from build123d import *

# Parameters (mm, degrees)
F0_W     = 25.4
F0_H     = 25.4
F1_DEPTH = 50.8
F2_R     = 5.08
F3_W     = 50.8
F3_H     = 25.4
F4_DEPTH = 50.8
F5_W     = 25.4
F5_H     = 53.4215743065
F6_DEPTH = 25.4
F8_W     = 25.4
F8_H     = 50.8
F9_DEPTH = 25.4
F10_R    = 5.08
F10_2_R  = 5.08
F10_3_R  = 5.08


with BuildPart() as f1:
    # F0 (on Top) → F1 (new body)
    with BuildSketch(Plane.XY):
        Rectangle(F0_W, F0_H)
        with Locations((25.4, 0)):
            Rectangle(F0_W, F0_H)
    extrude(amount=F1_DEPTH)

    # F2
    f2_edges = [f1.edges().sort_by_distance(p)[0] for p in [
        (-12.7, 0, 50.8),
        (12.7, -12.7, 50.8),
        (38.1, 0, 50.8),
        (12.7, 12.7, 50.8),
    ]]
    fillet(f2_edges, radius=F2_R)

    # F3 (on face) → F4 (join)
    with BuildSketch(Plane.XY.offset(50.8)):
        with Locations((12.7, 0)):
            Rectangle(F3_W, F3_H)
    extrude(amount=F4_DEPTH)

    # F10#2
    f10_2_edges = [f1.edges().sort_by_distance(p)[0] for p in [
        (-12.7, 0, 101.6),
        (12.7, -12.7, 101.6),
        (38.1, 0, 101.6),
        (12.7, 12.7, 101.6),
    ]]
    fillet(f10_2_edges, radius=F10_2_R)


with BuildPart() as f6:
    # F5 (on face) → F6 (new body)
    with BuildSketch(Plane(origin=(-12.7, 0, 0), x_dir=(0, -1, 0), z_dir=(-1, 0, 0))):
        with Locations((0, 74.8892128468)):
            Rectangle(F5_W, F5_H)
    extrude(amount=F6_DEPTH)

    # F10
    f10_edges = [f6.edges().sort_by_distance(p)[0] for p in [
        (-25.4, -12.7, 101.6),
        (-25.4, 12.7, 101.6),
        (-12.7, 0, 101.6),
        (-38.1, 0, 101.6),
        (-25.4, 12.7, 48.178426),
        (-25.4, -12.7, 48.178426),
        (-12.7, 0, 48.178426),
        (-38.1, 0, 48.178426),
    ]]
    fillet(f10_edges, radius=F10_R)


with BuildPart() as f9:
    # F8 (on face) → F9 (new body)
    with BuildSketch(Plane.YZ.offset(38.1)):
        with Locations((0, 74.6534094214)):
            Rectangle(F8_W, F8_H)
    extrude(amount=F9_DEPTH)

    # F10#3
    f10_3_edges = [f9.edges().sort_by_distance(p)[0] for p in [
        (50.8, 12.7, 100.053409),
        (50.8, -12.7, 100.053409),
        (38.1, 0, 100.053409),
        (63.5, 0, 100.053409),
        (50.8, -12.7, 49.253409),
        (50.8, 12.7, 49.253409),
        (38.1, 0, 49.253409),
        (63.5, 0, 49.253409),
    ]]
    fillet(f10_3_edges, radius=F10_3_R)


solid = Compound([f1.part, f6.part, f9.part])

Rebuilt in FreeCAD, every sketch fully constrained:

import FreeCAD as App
import Part
import Sketcher

V = App.Vector
Q = App.Units.Quantity


def edges_at(feature, points):
    """Names of the edges that pass closest to the given points."""
    edges = feature.Shape.Edges
    near = lambda p: min(range(len(edges)), key=lambda i: edges[i].distToShape(Part.Vertex(*p))[0])
    return sorted({f"Edge{near(p) + 1}" for p in points})


def add_polygon(sketch, points):
    """Adds a closed chain of lines whose ends are joined by coincident constraints."""
    first, n = sketch.GeometryCount, len(points)
    for a, b in zip(points, points[1:] + points[:1]):
        sketch.addGeometry(Part.LineSegment(App.Vector(*a, 0), App.Vector(*b, 0)), False)
    for i in range(n):
        sketch.addConstraint(Sketcher.Constraint("Coincident", first + i, 2, first + (i + 1) % n, 1))

doc = App.newDocument("Part")
body = doc.addObject("PartDesign::Body", "Body")

sketch1 = doc.addObject("Sketcher::SketchObject", "Sketch")
body.addObject(sketch1)
sketch1.AttachmentSupport = (doc.XY_Plane, [""])
sketch1.MapMode = "FlatFace"
add_polygon(sketch1, [(-13, 13), (-13, -13), (38, -13), (38, 13)])
sketch1.addConstraint([
    Sketcher.Constraint("Vertical", 0),
    Sketcher.Constraint("Horizontal", 1),
    Sketcher.Constraint("Vertical", 2),
    Sketcher.Constraint("Horizontal", 3),
    Sketcher.Constraint("DistanceX", 1, 1, 1, 2, Q("2 in")),
    Sketcher.Constraint("DistanceY", 0, 2, 0, 1, Q("1 in")),
    Sketcher.Constraint("DistanceX", 0, 2, -1, 1, Q("0.5 in")),
    Sketcher.Constraint("DistanceY", 0, 2, -1, 1, Q("0.5 in")),
])
pad1 = doc.addObject("PartDesign::Pad", "Pad")
body.addObject(pad1)
pad1.Profile = sketch1
pad1.Length = Q("2 in")
doc.recompute()

fillet = doc.addObject("PartDesign::Fillet", "Fillet")
body.addObject(fillet)
fillet.Base = (pad1, edges_at(pad1, [
    (-12.7, 0, 50.8),
    (12.7, -12.7, 50.8),
    (38.1, 0, 50.8),
    (12.7, 12.7, 50.8),
]))
fillet.Radius = Q("0.2 in")

sketch2 = doc.addObject("Sketcher::SketchObject", "Sketch001")
body.addObject(sketch2)
sketch2.AttachmentSupport = (doc.XY_Plane, [""])
sketch2.MapMode = "FlatFace"
sketch2.AttachmentOffset = App.Placement(V(0, 0, 2 * 25.4), App.Rotation())
add_polygon(sketch2, [(-13, 13), (-13, -13), (38, -13), (38, 13)])
sketch2.addConstraint([
    Sketcher.Constraint("Vertical", 0),
    Sketcher.Constraint("Horizontal", 1),
    Sketcher.Constraint("Vertical", 2),
    Sketcher.Constraint("Horizontal", 3),
    Sketcher.Constraint("DistanceX", 1, 1, 1, 2, Q("2 in")),
    Sketcher.Constraint("DistanceY", 0, 2, 0, 1, Q("1 in")),
    Sketcher.Constraint("DistanceX", 0, 2, -1, 1, Q("0.5 in")),
    Sketcher.Constraint("DistanceY", 0, 2, -1, 1, Q("0.5 in")),
])
pad2 = doc.addObject("PartDesign::Pad", "Pad001")
body.addObject(pad2)
pad2.Profile = sketch2
pad2.Length = Q("2 in")
doc.recompute()

fillet2 = doc.addObject("PartDesign::Fillet", "Fillet001")
body.addObject(fillet2)
fillet2.Base = (pad2, edges_at(pad2, [
    (-12.7, 0, 101.6),
    (12.7, -12.7, 101.6),
    (38.1, 0, 101.6),
    (12.7, 12.7, 101.6),
]))
fillet2.Radius = Q("0.2 in")
body2 = doc.addObject("PartDesign::Body", "Body001")

sketch3 = doc.addObject("Sketcher::SketchObject", "Sketch002")
body2.addObject(sketch3)
sketch3.AttachmentSupport = (doc.getObject("YZ_Plane001"), [""])
sketch3.MapMode = "FlatFace"
sketch3.AttachmentOffset = App.Placement(V(0, 0, -0.5 * 25.4), App.Rotation())
add_polygon(sketch3, [(13, 102), (13, 48), (-13, 48), (-13, 102)])
sketch3.addConstraint([
    Sketcher.Constraint("Vertical", 0),
    Sketcher.Constraint("Horizontal", 1),
    Sketcher.Constraint("Vertical", 2),
    Sketcher.Constraint("Horizontal", 3),
    Sketcher.Constraint("DistanceX", 1, 2, 1, 1, Q("1 in")),
    Sketcher.Constraint("DistanceY", -1, 1, 2, 2, Q("4 in")),
    Sketcher.Constraint("DistanceX", -1, 1, 0, 2, Q("0.5 in")),
    Sketcher.Constraint("DistanceY", 0, 2, 0, 1, Q("53.421574 mm")),
])
pad3 = doc.addObject("PartDesign::Pad", "Pad002")
body2.addObject(pad3)
pad3.Profile = sketch3
pad3.Length = Q("1 in")
pad3.Reversed = True
doc.recompute()

fillet3 = doc.addObject("PartDesign::Fillet", "Fillet002")
body2.addObject(fillet3)
fillet3.Base = (pad3, edges_at(pad3, [
    (-25.4, -12.7, 101.6),
    (-25.4, 12.7, 101.6),
    (-12.7, 0, 101.6),
    (-38.1, 0, 101.6),
    (-25.4, 12.7, 48.178),
    (-25.4, -12.7, 48.178),
    (-12.7, 0, 48.178),
    (-38.1, 0, 48.178),
]))
fillet3.Radius = Q("0.2 in")
body3 = doc.addObject("PartDesign::Body", "Body002")

sketch4 = doc.addObject("Sketcher::SketchObject", "Sketch003")
body3.addObject(sketch4)
sketch4.AttachmentSupport = (doc.getObject("YZ_Plane002"), [""])
sketch4.MapMode = "FlatFace"
sketch4.AttachmentOffset = App.Placement(V(0, 0, 1.5 * 25.4), App.Rotation())
add_polygon(sketch4, [(-13, 100), (-13, 49), (13, 49), (13, 100)])
sketch4.addConstraint([
    Sketcher.Constraint("Vertical", 0),
    Sketcher.Constraint("Horizontal", 1),
    Sketcher.Constraint("Vertical", 2),
    Sketcher.Constraint("Horizontal", 3),
    Sketcher.Constraint("DistanceX", 1, 1, 1, 2, Q("1 in")),
    Sketcher.Constraint("DistanceY", 0, 2, 0, 1, Q("2 in")),
    Sketcher.Constraint("DistanceX", 0, 2, -1, 1, Q("0.5 in")),
    Sketcher.Constraint("DistanceY", -1, 1, 0, 2, Q("49.253409 mm")),
])
pad4 = doc.addObject("PartDesign::Pad", "Pad003")
body3.addObject(pad4)
pad4.Profile = sketch4
pad4.Length = Q("1 in")
doc.recompute()

fillet4 = doc.addObject("PartDesign::Fillet", "Fillet003")
body3.addObject(fillet4)
fillet4.Base = (pad4, edges_at(pad4, [
    (50.8, 12.7, 100.053),
    (50.8, -12.7, 100.053),
    (38.1, 0, 100.053),
    (63.5, 0, 100.053),
    (50.8, -12.7, 49.253),
    (50.8, 12.7, 49.253),
    (38.1, 0, 49.253),
    (63.5, 0, 49.253),
]))
fillet4.Radius = Q("0.2 in")

doc.recompute()
